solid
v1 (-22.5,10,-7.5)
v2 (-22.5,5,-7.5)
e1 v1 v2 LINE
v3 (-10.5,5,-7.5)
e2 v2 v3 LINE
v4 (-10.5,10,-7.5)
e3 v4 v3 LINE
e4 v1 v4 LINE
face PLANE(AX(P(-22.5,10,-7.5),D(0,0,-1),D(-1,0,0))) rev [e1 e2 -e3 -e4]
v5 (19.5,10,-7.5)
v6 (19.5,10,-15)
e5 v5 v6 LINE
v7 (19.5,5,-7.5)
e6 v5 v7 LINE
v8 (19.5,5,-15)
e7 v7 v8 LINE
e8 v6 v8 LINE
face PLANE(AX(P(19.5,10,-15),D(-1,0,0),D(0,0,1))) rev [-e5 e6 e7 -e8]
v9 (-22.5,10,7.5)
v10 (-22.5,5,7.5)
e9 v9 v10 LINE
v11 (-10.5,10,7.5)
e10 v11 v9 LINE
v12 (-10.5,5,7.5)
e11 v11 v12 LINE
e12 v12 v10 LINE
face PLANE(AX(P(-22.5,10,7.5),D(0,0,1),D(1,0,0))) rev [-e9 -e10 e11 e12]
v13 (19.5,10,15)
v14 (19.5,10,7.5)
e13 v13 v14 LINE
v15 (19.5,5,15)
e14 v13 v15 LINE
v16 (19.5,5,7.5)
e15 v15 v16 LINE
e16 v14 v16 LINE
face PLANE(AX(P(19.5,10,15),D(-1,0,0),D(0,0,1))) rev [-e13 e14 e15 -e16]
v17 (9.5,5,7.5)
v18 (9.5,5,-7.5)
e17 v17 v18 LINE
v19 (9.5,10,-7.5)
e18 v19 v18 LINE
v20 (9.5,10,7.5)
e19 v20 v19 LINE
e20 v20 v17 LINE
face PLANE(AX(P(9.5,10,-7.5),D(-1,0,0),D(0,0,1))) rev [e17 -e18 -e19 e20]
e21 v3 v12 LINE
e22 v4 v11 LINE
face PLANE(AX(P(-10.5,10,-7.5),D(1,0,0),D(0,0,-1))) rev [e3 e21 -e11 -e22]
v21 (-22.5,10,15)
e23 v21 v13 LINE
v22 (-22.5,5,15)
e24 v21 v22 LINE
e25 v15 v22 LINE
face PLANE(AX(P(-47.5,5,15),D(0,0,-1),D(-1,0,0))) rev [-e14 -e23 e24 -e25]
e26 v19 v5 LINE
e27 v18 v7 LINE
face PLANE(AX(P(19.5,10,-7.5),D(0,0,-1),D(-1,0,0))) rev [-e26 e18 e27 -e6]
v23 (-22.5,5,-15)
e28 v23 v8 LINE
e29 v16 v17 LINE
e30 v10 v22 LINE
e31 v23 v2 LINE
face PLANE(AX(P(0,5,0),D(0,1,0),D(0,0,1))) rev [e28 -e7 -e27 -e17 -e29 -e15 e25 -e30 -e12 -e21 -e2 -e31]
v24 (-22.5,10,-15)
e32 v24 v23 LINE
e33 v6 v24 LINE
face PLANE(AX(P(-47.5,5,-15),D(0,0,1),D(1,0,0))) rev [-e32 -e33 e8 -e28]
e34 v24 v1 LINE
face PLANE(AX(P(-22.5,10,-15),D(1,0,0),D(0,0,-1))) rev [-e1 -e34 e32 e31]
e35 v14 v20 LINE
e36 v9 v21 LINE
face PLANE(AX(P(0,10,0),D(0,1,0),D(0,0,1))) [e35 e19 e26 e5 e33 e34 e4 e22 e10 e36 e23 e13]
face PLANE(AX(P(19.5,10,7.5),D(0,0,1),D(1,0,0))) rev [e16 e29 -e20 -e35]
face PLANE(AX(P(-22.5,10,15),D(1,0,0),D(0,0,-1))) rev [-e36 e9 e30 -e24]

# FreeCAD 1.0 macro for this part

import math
import FreeCAD as App
import Part
import Sketcher
from FreeCAD import Vector


def edges_at(feature, points):
    """Names of the edges that pass closest to the given points."""
    edges = feature.Shape.Edges
    near = lambda p: min(range(len(edges)), key=lambda i: edges[i].distToShape(Part.Vertex(*p))[0])
    return sorted({f"Edge{near(p) + 1}" for p in points})


def add_polygon(sketch, points):
    """Adds a closed chain of lines whose ends are joined by coincident constraints."""
    first, n = sketch.GeometryCount, len(points)
    for a, b in zip(points, points[1:] + points[:1]):
        sketch.addGeometry(Part.LineSegment(App.Vector(*a, 0), App.Vector(*b, 0)), False)
    for i in range(n):
        sketch.addConstraint(Sketcher.Constraint("Coincident", first + i, 2, first + (i + 1) % n, 1))

doc = App.newDocument("Part")
body = doc.addObject("PartDesign::Body", "Body")

sketch1 = body.newObject("Sketcher::SketchObject", "Sketch")
sketch1.AttachmentSupport = (doc.getObject("XZ_Plane"), [""])
sketch1.MapMode = "FlatFace"
add_polygon(sketch1, [(-47.5, -15), (-47.5, 15), (47.5, 15), (47.5, -15)])
sketch1.addGeometry(Part.Circle(Vector(-32.5, 13.4, 0), Vector(0, 0, 1), 1), False)
sketch1.addGeometry(Part.Circle(Vector(-32.5, 10.4, 0), Vector(0, 0, 1), 1), False)
sketch1.addGeometry(Part.Circle(Vector(-45.9, 0, 0), Vector(0, 0, 1), 1), False)
sketch1.addGeometry(Part.Circle(Vector(-42.9, 0, 0), Vector(0, 0, 1), 1), False)
sketch1.addGeometry(Part.Circle(Vector(-32.5, 0, 0), Vector(0, 0, 1), 7), False)
sketch1.addGeometry(Part.Circle(Vector(-22.1, 0, 0), Vector(0, 0, 1), 1), False)
sketch1.addGeometry(Part.Circle(Vector(-19.1, 0, 0), Vector(0, 0, 1), 1), False)
sketch1.addGeometry(Part.Circle(Vector(-32.5, -10.4, 0), Vector(0, 0, 1), 1), False)
sketch1.addGeometry(Part.Circle(Vector(-32.5, -13.4, 0), Vector(0, 0, 1), 1), False)
sketch1.addConstraint(Sketcher.Constraint("Vertical", 0))
sketch1.addConstraint(Sketcher.Constraint("Horizontal", 1))
sketch1.addConstraint(Sketcher.Constraint("Vertical", 2))
sketch1.addConstraint(Sketcher.Constraint("Horizontal", 3))
sketch1.addConstraint(Sketcher.Constraint("Equal", 4, 5))
sketch1.addConstraint(Sketcher.Constraint("Equal", 5, 6))
sketch1.addConstraint(Sketcher.Constraint("Equal", 6, 7))
sketch1.addConstraint(Sketcher.Constraint("Equal", 7, 9))
sketch1.addConstraint(Sketcher.Constraint("Equal", 9, 10))
sketch1.addConstraint(Sketcher.Constraint("Equal", 10, 11))
sketch1.addConstraint(Sketcher.Constraint("Equal", 11, 12))
sketch1.addConstraint(Sketcher.Constraint("Symmetric", 0, 2, 2, 2, -1, 1))
sketch1.addConstraint(Sketcher.Constraint("Symmetric", 5, 3, 11, 3, -1))
sketch1.addConstraint(Sketcher.Constraint("Symmetric", 4, 3, 12, 3, -1))
sketch1.addConstraint(Sketcher.Constraint("PointOnObject", 6, 3, -1))
sketch1.addConstraint(Sketcher.Constraint("PointOnObject", 7, 3, -1))
sketch1.addConstraint(Sketcher.Constraint("PointOnObject", 8, 3, -1))
sketch1.addConstraint(Sketcher.Constraint("PointOnObject", 9, 3, -1))
sketch1.addConstraint(Sketcher.Constraint("PointOnObject", 10, 3, -1))
sketch1.addConstraint(Sketcher.Constraint("Vertical", 4, 3, 5, 3))
sketch1.addConstraint(Sketcher.Constraint("Vertical", 5, 3, 8, 3))
sketch1.addConstraint(Sketcher.Constraint("Diameter", 4, 2.0))
sketch1.addConstraint(Sketcher.Constraint("Diameter", 8, 14.0))
sketch1.addConstraint(Sketcher.Constraint("DistanceX", 1, 1, 1, 2, 95.0))
sketch1.addConstraint(Sketcher.Constraint("DistanceY", 0, 1, 0, 2, 30.0))
sketch1.addConstraint(Sketcher.Constraint("DistanceY", 5, 3, 4, 3, 3.0))
sketch1.addConstraint(Sketcher.Constraint("DistanceX", 6, 3, 7, 3, 3.0))
sketch1.addConstraint(Sketcher.Constraint("DistanceX", 9, 3, 10, 3, 3.0))
sketch1.addConstraint(Sketcher.Constraint("DistanceX", 0, 2, 4, 3, 15.0))
sketch1.addConstraint(Sketcher.Constraint("DistanceY", -1, 1, 4, 3, 13.4))
sketch1.addConstraint(Sketcher.Constraint("DistanceX", 6, 3, -1, 1, 45.9))
sketch1.addConstraint(Sketcher.Constraint("DistanceX", 9, 3, -1, 1, 22.1))
pad1 = body.newObject("PartDesign::Pad", "Pad")
pad1.Profile = sketch1
pad1.Length = 5
pad1.Reversed = True

sketch2 = body.newObject("Sketcher::SketchObject", "Sketch001")
sketch2.AttachmentSupport = (doc.getObject("XZ_Plane"), [""])
sketch2.MapMode = "FlatFace"
sketch2.AttachmentOffset = App.Placement(Vector(0, 0, -5), App.Rotation())
add_polygon(sketch2, [(-8, -5), (-8, 5), (-2, 5), (-2, -5)])
sketch2.addConstraint(Sketcher.Constraint("Vertical", 0))
sketch2.addConstraint(Sketcher.Constraint("Horizontal", 1))
sketch2.addConstraint(Sketcher.Constraint("Vertical", 2))
sketch2.addConstraint(Sketcher.Constraint("Horizontal", 3))
sketch2.addConstraint(Sketcher.Constraint("DistanceX", 1, 1, 1, 2, 5.0))
sketch2.addConstraint(Sketcher.Constraint("DistanceY", 0, 1, 0, 2, 10.0))
sketch2.addConstraint(Sketcher.Constraint("DistanceY", -1, 1, 0, 2, 5.0))
sketch2.addConstraint(Sketcher.Constraint("DistanceX", 0, 2, -1, 1, 7.5))
pocket1 = body.newObject("PartDesign::Pocket", "Pocket")
pocket1.Profile = sketch2
pocket1.Length = 10
pocket1.Reversed = True

sketch3 = body.newObject("Sketcher::SketchObject", "Sketch002")
sketch3.AttachmentSupport = (doc.getObject("XZ_Plane"), [""])
sketch3.MapMode = "FlatFace"
sketch3.AttachmentOffset = App.Placement(Vector(0, 0, -5), App.Rotation())
sketch3.addGeometry(Part.Circle(Vector(-32.5, 0, 0), Vector(0, 0, 1), 7), False)
sketch3.addGeometry(Part.Circle(Vector(-32.5, 13.4, 0), Vector(0, 0, 1), 1), False)
sketch3.addGeometry(Part.Circle(Vector(-32.5, 10.4, 0), Vector(0, 0, 1), 1), False)
sketch3.addGeometry(Part.Circle(Vector(-42.9, 0, 0), Vector(0, 0, 1), 1), False)
sketch3.addGeometry(Part.Circle(Vector(-45.9, 0, 0), Vector(0, 0, 1), 1), False)
sketch3.addGeometry(Part.Circle(Vector(-32.5, -13.4, 0), Vector(0, 0, 1), 1), False)
sketch3.addGeometry(Part.Circle(Vector(-22.1, 0, 0), Vector(0, 0, 1), 1), False)
sketch3.addGeometry(Part.Circle(Vector(-19.1, 0, 0), Vector(0, 0, 1), 1), False)
sketch3.addGeometry(Part.Circle(Vector(-32.5, -10.4, 0), Vector(0, 0, 1), 1), False)
sketch3.addGeometry(Part.Circle(Vector(27.5, 13.4, 0), Vector(0, 0, 1), 1), False)
sketch3.addGeometry(Part.Circle(Vector(27.5, 10.4, 0), Vector(0, 0, 1), 1), False)
sketch3.addGeometry(Part.Circle(Vector(40.9, 0, 0), Vector(0, 0, 1), 1), False)
sketch3.addGeometry(Part.Circle(Vector(37.9, 0, 0), Vector(0, 0, 1), 1), False)
sketch3.addGeometry(Part.Circle(Vector(27.5, 0, 0), Vector(0, 0, 1), 7), False)
sketch3.addGeometry(Part.Circle(Vector(27.5, -10.4, 0), Vector(0, 0, 1), 1), False)
sketch3.addGeometry(Part.Circle(Vector(27.5, -13.4, 0), Vector(0, 0, 1), 1), False)
sketch3.addGeometry(Part.Circle(Vector(17.1, 0, 0), Vector(0, 0, 1), 1), False)
sketch3.addGeometry(Part.Circle(Vector(14.1, 0, 0), Vector(0, 0, 1), 1), False)
sketch3.addConstraint(Sketcher.Constraint("Equal", 1, 2))
sketch3.addConstraint(Sketcher.Constraint("Equal", 2, 3))
sketch3.addConstraint(Sketcher.Constraint("Equal", 3, 4))
sketch3.addConstraint(Sketcher.Constraint("Equal", 4, 5))
sketch3.addConstraint(Sketcher.Constraint("Equal", 5, 6))
sketch3.addConstraint(Sketcher.Constraint("Equal", 6, 7))
sketch3.addConstraint(Sketcher.Constraint("Equal", 7, 8))
sketch3.addConstraint(Sketcher.Constraint("Equal", 8, 9))
sketch3.addConstraint(Sketcher.Constraint("Equal", 9, 10))
sketch3.addConstraint(Sketcher.Constraint("Equal", 10, 11))
sketch3.addConstraint(Sketcher.Constraint("Equal", 11, 12))
sketch3.addConstraint(Sketcher.Constraint("Equal", 0, 13))
sketch3.addConstraint(Sketcher.Constraint("Equal", 12, 14))
sketch3.addConstraint(Sketcher.Constraint("Equal", 14, 15))
sketch3.addConstraint(Sketcher.Constraint("Equal", 15, 16))
sketch3.addConstraint(Sketcher.Constraint("Equal", 16, 17))
sketch3.addConstraint(Sketcher.Constraint("Symmetric", 1, 3, 5, 3, -1))
sketch3.addConstraint(Sketcher.Constraint("Symmetric", 2, 3, 8, 3, -1))
sketch3.addConstraint(Sketcher.Constraint("Symmetric", 10, 3, 14, 3, -1))
sketch3.addConstraint(Sketcher.Constraint("Symmetric", 9, 3, 15, 3, -1))
sketch3.addConstraint(Sketcher.Constraint("PointOnObject", 0, 3, -1))
sketch3.addConstraint(Sketcher.Constraint("PointOnObject", 3, 3, -1))
sketch3.addConstraint(Sketcher.Constraint("PointOnObject", 4, 3, -1))
sketch3.addConstraint(Sketcher.Constraint("PointOnObject", 6, 3, -1))
sketch3.addConstraint(Sketcher.Constraint("PointOnObject", 7, 3, -1))
sketch3.addConstraint(Sketcher.Constraint("PointOnObject", 11, 3, -1))
sketch3.addConstraint(Sketcher.Constraint("PointOnObject", 12, 3, -1))
sketch3.addConstraint(Sketcher.Constraint("PointOnObject", 13, 3, -1))
sketch3.addConstraint(Sketcher.Constraint("PointOnObject", 16, 3, -1))
sketch3.addConstraint(Sketcher.Constraint("PointOnObject", 17, 3, -1))
sketch3.addConstraint(Sketcher.Constraint("Horizontal", 1, 3, 9, 3))
sketch3.addConstraint(Sketcher.Constraint("Horizontal", 2, 3, 10, 3))
sketch3.addConstraint(Sketcher.Constraint("Vertical", 0, 3, 1, 3))
sketch3.addConstraint(Sketcher.Constraint("Vertical", 1, 3, 2, 3))
sketch3.addConstraint(Sketcher.Constraint("Vertical", 9, 3, 10, 3))
sketch3.addConstraint(Sketcher.Constraint("Vertical", 10, 3, 13, 3))
sketch3.addConstraint(Sketcher.Constraint("Diameter", 0, 14.0))
sketch3.addConstraint(Sketcher.Constraint("Diameter", 1, 2.0))
sketch3.addConstraint(Sketcher.Constraint("DistanceY", 2, 3, 1, 3, 3.0))
sketch3.addConstraint(Sketcher.Constraint("DistanceX", 4, 3, 3, 3, 3.0))
sketch3.addConstraint(Sketcher.Constraint("DistanceX", 6, 3, 7, 3, 3.0))
sketch3.addConstraint(Sketcher.Constraint("DistanceX", 1, 3, 9, 3, 60.0))
sketch3.addConstraint(Sketcher.Constraint("DistanceX", 7, 3, 11, 3, 60.0))
sketch3.addConstraint(Sketcher.Constraint("DistanceX", 12, 3, 11, 3, 3.0))
sketch3.addConstraint(Sketcher.Constraint("DistanceX", 17, 3, 16, 3, 3.0))
sketch3.addConstraint(Sketcher.Constraint("DistanceX", 0, 3, -1, 1, 32.5))
sketch3.addConstraint(Sketcher.Constraint("DistanceY", -1, 1, 1, 3, 13.4))
sketch3.addConstraint(Sketcher.Constraint("DistanceX", 3, 3, -1, 1, 42.9))
sketch3.addConstraint(Sketcher.Constraint("DistanceX", 6, 3, -1, 1, 22.1))
sketch3.addConstraint(Sketcher.Constraint("DistanceX", -1, 1, 16, 3, 17.1))
pocket2 = body.newObject("PartDesign::Pocket", "Pocket001")
pocket2.Profile = sketch3
pocket2.Length = 10
pocket2.Reversed = True
doc.recompute()

fillet = body.newObject("PartDesign::Fillet", "Fillet")
fillet.Base = (pocket2, edges_at(pocket2, [
    (47.5, 2.5, 15),
    (-47.5, 2.5, 15),
    (-47.5, 2.5, -15),
    (47.5, 2.5, -15),
]))
fillet.Radius = 10

sketch4 = body.newObject("Sketcher::SketchObject", "Sketch003")
sketch4.AttachmentSupport = (doc.getObject("XZ_Plane"), [""])
sketch4.MapMode = "FlatFace"
sketch4.AttachmentOffset = App.Placement(Vector(0, 0, -5), App.Rotation())
sketch4.addGeometry(Part.Circle(Vector(-7.5, -5, 0), Vector(0, 0, 1), 2), False)
sketch4.addConstraint(Sketcher.Constraint("Diameter", 0, 4.1))
sketch4.addConstraint(Sketcher.Constraint("DistanceY", 0, 3, -1, 1, 5.0))
sketch4.addConstraint(Sketcher.Constraint("DistanceX", 0, 3, -1, 1, 7.5))
pocket3 = body.newObject("PartDesign::Pocket", "Pocket002")
pocket3.Profile = sketch4
pocket3.Type = "UpToFirst"
pocket3.Reversed = True

sketch5 = body.newObject("Sketcher::SketchObject", "Sketch004")
sketch5.AttachmentSupport = (doc.getObject("XZ_Plane"), [""])
sketch5.MapMode = "FlatFace"
sketch5.AttachmentOffset = App.Placement(Vector(0, 0, -5), App.Rotation())
sketch5.addGeometry(Part.Circle(Vector(-2.5, -5, 0), Vector(0, 0, 1), 2), False)
sketch5.addConstraint(Sketcher.Constraint("Diameter", 0, 4.1))
sketch5.addConstraint(Sketcher.Constraint("DistanceY", 0, 3, -1, 1, 5.0))
sketch5.addConstraint(Sketcher.Constraint("DistanceX", 0, 3, -1, 1, 2.5))
pocket4 = body.newObject("PartDesign::Pocket", "Pocket003")
pocket4.Profile = sketch5
pocket4.Type = "UpToFirst"
pocket4.Reversed = True

sketch6 = body.newObject("Sketcher::SketchObject", "Sketch005")
sketch6.AttachmentSupport = (doc.getObject("XZ_Plane"), [""])
sketch6.MapMode = "FlatFace"
sketch6.AttachmentOffset = App.Placement(Vector(0, 0, -5), App.Rotation())
sketch6.addGeometry(Part.Circle(Vector(-2.5, 5, 0), Vector(0, 0, 1), 2), False)
sketch6.addConstraint(Sketcher.Constraint("Diameter", 0, 4.1))
sketch6.addConstraint(Sketcher.Constraint("DistanceY", -1, 1, 0, 3, 5.0))
sketch6.addConstraint(Sketcher.Constraint("DistanceX", 0, 3, -1, 1, 2.5))
pocket5 = body.newObject("PartDesign::Pocket", "Pocket004")
pocket5.Profile = sketch6
pocket5.Type = "UpToFirst"
pocket5.Reversed = True

sketch7 = body.newObject("Sketcher::SketchObject", "Sketch006")
sketch7.AttachmentSupport = (doc.getObject("XZ_Plane"), [""])
sketch7.MapMode = "FlatFace"
sketch7.AttachmentOffset = App.Placement(Vector(0, 0, -5), App.Rotation())
sketch7.addGeometry(Part.Circle(Vector(-7.5, 5, 0), Vector(0, 0, 1), 2), False)
sketch7.addConstraint(Sketcher.Constraint("Diameter", 0, 4.1))
sketch7.addConstraint(Sketcher.Constraint("DistanceY", -1, 1, 0, 3, 5.0))
sketch7.addConstraint(Sketcher.Constraint("DistanceX", 0, 3, -1, 1, 7.5))
pocket6 = body.newObject("PartDesign::Pocket", "Pocket005")
pocket6.Profile = sketch7
pocket6.Type = "UpToFirst"
pocket6.Reversed = True

sketch8 = body.newObject("Sketcher::SketchObject", "Sketch007")
sketch8.AttachmentSupport = (doc.getObject("XZ_Plane"), [""])
sketch8.MapMode = "FlatFace"
sketch8.AttachmentOffset = App.Placement(Vector(0, 0, -5), App.Rotation())
add_polygon(sketch8, [(20, -15), (-22, -15), (-22, -8), (-10, -8), (-10, 8), (-22, 8), (-22, 15), (20, 15), (20, 8), (10, 8), (10, -8), (20, -8)])
sketch8.addConstraint(Sketcher.Constraint("Horizontal", 0))
sketch8.addConstraint(Sketcher.Constraint("Vertical", 1))
sketch8.addConstraint(Sketcher.Constraint("Horizontal", 2))
sketch8.addConstraint(Sketcher.Constraint("Vertical", 3))
sketch8.addConstraint(Sketcher.Constraint("Horizontal", 4))
sketch8.addConstraint(Sketcher.Constraint("Vertical", 5))
sketch8.addConstraint(Sketcher.Constraint("Horizontal", 6))
sketch8.addConstraint(Sketcher.Constraint("Vertical", 7))
sketch8.addConstraint(Sketcher.Constraint("Horizontal", 8))
sketch8.addConstraint(Sketcher.Constraint("Vertical", 9))
sketch8.addConstraint(Sketcher.Constraint("Horizontal", 10))
sketch8.addConstraint(Sketcher.Constraint("Vertical", 11))
sketch8.addConstraint(Sketcher.Constraint("Symmetric", 1, 2, 4, 2, -1))
sketch8.addConstraint(Sketcher.Constraint("Symmetric", 7, 2, 10, 2, -1))
sketch8.addConstraint(Sketcher.Constraint("Horizontal", 4, 2, 7, 2))
sketch8.addConstraint(Sketcher.Constraint("Equal", 1, 5))
sketch8.addConstraint(Sketcher.Constraint("DistanceX", 0, 2, 0, 1, 42.0))
sketch8.addConstraint(Sketcher.Constraint("DistanceX", 2, 1, 2, 2, 12.0))
sketch8.addConstraint(Sketcher.Constraint("DistanceX", 8, 2, 8, 1, 10.0))
sketch8.addConstraint(Sketcher.Constraint("DistanceY", 3, 1, 3, 2, 15.0))
sketch8.addConstraint(Sketcher.Constraint("DistanceY", 1, 1, 1, 2, 7.5))
sketch8.addConstraint(Sketcher.Constraint("DistanceX", 0, 2, -1, 1, 22.5))
pad2 = body.newObject("PartDesign::Pad", "Pad001")
pad2.Profile = sketch8
pad2.Length = 5
pad2.Reversed = True

sketch9 = body.newObject("Sketcher::SketchObject", "Sketch008")
sketch9.AttachmentSupport = (doc.getObject("XZ_Plane"), [""])
sketch9.MapMode = "FlatFace"
sketch9.addGeometry(Part.LineSegment(Vector(48, -5, 0), Vector(48, 5, 0)), False)
sketch9.addGeometry(Part.ArcOfCircle(Part.Circle(Vector(38, 5, 0), Vector(0, 0, 1), 10), math.radians(0), math.radians(90)), False)
sketch9.addGeometry(Part.LineSegment(Vector(38, 15, 0), Vector(-38, 15, 0)), False)
sketch9.addGeometry(Part.ArcOfCircle(Part.Circle(Vector(-38, 5, 0), Vector(0, 0, 1), 10), math.radians(90), math.radians(180)), False)
sketch9.addGeometry(Part.LineSegment(Vector(-48, 5, 0), Vector(-48, -5, 0)), False)
sketch9.addGeometry(Part.ArcOfCircle(Part.Circle(Vector(-38, -5, 0), Vector(0, 0, 1), 10), math.radians(180), math.radians(270)), False)
sketch9.addGeometry(Part.LineSegment(Vector(-38, -15, 0), Vector(38, -15, 0)), False)
sketch9.addGeometry(Part.ArcOfCircle(Part.Circle(Vector(38, -5, 0), Vector(0, 0, 1), 10), math.radians(-90), math.radians(0)), False)
sketch9.addConstraint(Sketcher.Constraint("Tangent", 0, 2, 1, 1))
sketch9.addConstraint(Sketcher.Constraint("Tangent", 1, 2, 2, 1))
sketch9.addConstraint(Sketcher.Constraint("Tangent", 2, 2, 3, 1))
sketch9.addConstraint(Sketcher.Constraint("Tangent", 3, 2, 4, 1))
sketch9.addConstraint(Sketcher.Constraint("Tangent", 4, 2, 5, 1))
sketch9.addConstraint(Sketcher.Constraint("Tangent", 5, 2, 6, 1))
sketch9.addConstraint(Sketcher.Constraint("Tangent", 6, 2, 7, 1))
sketch9.addConstraint(Sketcher.Constraint("Tangent", 7, 2, 0, 1))
sketch9.addConstraint(Sketcher.Constraint("Vertical", 0))
sketch9.addConstraint(Sketcher.Constraint("Horizontal", 2))
sketch9.addConstraint(Sketcher.Constraint("Vertical", 4))
sketch9.addConstraint(Sketcher.Constraint("Horizontal", 6))
sketch9.addConstraint(Sketcher.Constraint("Equal", 1, 3))
sketch9.addConstraint(Sketcher.Constraint("Equal", 3, 5))
sketch9.addConstraint(Sketcher.Constraint("Equal", 5, 7))
sketch9.addConstraint(Sketcher.Constraint("Symmetric", 1, 3, 5, 3, -1, 1))
sketch9.addConstraint(Sketcher.Constraint("Radius", 1, 10.0))
sketch9.addConstraint(Sketcher.Constraint("DistanceX", 2, 2, 2, 1, 75.0))
sketch9.addConstraint(Sketcher.Constraint("DistanceY", 0, 1, 0, 2, 10.0))
pocket7 = body.newObject("PartDesign::Pocket", "Pocket006")
pocket7.Profile = sketch9
pocket7.Length = 5

doc.recompute()
